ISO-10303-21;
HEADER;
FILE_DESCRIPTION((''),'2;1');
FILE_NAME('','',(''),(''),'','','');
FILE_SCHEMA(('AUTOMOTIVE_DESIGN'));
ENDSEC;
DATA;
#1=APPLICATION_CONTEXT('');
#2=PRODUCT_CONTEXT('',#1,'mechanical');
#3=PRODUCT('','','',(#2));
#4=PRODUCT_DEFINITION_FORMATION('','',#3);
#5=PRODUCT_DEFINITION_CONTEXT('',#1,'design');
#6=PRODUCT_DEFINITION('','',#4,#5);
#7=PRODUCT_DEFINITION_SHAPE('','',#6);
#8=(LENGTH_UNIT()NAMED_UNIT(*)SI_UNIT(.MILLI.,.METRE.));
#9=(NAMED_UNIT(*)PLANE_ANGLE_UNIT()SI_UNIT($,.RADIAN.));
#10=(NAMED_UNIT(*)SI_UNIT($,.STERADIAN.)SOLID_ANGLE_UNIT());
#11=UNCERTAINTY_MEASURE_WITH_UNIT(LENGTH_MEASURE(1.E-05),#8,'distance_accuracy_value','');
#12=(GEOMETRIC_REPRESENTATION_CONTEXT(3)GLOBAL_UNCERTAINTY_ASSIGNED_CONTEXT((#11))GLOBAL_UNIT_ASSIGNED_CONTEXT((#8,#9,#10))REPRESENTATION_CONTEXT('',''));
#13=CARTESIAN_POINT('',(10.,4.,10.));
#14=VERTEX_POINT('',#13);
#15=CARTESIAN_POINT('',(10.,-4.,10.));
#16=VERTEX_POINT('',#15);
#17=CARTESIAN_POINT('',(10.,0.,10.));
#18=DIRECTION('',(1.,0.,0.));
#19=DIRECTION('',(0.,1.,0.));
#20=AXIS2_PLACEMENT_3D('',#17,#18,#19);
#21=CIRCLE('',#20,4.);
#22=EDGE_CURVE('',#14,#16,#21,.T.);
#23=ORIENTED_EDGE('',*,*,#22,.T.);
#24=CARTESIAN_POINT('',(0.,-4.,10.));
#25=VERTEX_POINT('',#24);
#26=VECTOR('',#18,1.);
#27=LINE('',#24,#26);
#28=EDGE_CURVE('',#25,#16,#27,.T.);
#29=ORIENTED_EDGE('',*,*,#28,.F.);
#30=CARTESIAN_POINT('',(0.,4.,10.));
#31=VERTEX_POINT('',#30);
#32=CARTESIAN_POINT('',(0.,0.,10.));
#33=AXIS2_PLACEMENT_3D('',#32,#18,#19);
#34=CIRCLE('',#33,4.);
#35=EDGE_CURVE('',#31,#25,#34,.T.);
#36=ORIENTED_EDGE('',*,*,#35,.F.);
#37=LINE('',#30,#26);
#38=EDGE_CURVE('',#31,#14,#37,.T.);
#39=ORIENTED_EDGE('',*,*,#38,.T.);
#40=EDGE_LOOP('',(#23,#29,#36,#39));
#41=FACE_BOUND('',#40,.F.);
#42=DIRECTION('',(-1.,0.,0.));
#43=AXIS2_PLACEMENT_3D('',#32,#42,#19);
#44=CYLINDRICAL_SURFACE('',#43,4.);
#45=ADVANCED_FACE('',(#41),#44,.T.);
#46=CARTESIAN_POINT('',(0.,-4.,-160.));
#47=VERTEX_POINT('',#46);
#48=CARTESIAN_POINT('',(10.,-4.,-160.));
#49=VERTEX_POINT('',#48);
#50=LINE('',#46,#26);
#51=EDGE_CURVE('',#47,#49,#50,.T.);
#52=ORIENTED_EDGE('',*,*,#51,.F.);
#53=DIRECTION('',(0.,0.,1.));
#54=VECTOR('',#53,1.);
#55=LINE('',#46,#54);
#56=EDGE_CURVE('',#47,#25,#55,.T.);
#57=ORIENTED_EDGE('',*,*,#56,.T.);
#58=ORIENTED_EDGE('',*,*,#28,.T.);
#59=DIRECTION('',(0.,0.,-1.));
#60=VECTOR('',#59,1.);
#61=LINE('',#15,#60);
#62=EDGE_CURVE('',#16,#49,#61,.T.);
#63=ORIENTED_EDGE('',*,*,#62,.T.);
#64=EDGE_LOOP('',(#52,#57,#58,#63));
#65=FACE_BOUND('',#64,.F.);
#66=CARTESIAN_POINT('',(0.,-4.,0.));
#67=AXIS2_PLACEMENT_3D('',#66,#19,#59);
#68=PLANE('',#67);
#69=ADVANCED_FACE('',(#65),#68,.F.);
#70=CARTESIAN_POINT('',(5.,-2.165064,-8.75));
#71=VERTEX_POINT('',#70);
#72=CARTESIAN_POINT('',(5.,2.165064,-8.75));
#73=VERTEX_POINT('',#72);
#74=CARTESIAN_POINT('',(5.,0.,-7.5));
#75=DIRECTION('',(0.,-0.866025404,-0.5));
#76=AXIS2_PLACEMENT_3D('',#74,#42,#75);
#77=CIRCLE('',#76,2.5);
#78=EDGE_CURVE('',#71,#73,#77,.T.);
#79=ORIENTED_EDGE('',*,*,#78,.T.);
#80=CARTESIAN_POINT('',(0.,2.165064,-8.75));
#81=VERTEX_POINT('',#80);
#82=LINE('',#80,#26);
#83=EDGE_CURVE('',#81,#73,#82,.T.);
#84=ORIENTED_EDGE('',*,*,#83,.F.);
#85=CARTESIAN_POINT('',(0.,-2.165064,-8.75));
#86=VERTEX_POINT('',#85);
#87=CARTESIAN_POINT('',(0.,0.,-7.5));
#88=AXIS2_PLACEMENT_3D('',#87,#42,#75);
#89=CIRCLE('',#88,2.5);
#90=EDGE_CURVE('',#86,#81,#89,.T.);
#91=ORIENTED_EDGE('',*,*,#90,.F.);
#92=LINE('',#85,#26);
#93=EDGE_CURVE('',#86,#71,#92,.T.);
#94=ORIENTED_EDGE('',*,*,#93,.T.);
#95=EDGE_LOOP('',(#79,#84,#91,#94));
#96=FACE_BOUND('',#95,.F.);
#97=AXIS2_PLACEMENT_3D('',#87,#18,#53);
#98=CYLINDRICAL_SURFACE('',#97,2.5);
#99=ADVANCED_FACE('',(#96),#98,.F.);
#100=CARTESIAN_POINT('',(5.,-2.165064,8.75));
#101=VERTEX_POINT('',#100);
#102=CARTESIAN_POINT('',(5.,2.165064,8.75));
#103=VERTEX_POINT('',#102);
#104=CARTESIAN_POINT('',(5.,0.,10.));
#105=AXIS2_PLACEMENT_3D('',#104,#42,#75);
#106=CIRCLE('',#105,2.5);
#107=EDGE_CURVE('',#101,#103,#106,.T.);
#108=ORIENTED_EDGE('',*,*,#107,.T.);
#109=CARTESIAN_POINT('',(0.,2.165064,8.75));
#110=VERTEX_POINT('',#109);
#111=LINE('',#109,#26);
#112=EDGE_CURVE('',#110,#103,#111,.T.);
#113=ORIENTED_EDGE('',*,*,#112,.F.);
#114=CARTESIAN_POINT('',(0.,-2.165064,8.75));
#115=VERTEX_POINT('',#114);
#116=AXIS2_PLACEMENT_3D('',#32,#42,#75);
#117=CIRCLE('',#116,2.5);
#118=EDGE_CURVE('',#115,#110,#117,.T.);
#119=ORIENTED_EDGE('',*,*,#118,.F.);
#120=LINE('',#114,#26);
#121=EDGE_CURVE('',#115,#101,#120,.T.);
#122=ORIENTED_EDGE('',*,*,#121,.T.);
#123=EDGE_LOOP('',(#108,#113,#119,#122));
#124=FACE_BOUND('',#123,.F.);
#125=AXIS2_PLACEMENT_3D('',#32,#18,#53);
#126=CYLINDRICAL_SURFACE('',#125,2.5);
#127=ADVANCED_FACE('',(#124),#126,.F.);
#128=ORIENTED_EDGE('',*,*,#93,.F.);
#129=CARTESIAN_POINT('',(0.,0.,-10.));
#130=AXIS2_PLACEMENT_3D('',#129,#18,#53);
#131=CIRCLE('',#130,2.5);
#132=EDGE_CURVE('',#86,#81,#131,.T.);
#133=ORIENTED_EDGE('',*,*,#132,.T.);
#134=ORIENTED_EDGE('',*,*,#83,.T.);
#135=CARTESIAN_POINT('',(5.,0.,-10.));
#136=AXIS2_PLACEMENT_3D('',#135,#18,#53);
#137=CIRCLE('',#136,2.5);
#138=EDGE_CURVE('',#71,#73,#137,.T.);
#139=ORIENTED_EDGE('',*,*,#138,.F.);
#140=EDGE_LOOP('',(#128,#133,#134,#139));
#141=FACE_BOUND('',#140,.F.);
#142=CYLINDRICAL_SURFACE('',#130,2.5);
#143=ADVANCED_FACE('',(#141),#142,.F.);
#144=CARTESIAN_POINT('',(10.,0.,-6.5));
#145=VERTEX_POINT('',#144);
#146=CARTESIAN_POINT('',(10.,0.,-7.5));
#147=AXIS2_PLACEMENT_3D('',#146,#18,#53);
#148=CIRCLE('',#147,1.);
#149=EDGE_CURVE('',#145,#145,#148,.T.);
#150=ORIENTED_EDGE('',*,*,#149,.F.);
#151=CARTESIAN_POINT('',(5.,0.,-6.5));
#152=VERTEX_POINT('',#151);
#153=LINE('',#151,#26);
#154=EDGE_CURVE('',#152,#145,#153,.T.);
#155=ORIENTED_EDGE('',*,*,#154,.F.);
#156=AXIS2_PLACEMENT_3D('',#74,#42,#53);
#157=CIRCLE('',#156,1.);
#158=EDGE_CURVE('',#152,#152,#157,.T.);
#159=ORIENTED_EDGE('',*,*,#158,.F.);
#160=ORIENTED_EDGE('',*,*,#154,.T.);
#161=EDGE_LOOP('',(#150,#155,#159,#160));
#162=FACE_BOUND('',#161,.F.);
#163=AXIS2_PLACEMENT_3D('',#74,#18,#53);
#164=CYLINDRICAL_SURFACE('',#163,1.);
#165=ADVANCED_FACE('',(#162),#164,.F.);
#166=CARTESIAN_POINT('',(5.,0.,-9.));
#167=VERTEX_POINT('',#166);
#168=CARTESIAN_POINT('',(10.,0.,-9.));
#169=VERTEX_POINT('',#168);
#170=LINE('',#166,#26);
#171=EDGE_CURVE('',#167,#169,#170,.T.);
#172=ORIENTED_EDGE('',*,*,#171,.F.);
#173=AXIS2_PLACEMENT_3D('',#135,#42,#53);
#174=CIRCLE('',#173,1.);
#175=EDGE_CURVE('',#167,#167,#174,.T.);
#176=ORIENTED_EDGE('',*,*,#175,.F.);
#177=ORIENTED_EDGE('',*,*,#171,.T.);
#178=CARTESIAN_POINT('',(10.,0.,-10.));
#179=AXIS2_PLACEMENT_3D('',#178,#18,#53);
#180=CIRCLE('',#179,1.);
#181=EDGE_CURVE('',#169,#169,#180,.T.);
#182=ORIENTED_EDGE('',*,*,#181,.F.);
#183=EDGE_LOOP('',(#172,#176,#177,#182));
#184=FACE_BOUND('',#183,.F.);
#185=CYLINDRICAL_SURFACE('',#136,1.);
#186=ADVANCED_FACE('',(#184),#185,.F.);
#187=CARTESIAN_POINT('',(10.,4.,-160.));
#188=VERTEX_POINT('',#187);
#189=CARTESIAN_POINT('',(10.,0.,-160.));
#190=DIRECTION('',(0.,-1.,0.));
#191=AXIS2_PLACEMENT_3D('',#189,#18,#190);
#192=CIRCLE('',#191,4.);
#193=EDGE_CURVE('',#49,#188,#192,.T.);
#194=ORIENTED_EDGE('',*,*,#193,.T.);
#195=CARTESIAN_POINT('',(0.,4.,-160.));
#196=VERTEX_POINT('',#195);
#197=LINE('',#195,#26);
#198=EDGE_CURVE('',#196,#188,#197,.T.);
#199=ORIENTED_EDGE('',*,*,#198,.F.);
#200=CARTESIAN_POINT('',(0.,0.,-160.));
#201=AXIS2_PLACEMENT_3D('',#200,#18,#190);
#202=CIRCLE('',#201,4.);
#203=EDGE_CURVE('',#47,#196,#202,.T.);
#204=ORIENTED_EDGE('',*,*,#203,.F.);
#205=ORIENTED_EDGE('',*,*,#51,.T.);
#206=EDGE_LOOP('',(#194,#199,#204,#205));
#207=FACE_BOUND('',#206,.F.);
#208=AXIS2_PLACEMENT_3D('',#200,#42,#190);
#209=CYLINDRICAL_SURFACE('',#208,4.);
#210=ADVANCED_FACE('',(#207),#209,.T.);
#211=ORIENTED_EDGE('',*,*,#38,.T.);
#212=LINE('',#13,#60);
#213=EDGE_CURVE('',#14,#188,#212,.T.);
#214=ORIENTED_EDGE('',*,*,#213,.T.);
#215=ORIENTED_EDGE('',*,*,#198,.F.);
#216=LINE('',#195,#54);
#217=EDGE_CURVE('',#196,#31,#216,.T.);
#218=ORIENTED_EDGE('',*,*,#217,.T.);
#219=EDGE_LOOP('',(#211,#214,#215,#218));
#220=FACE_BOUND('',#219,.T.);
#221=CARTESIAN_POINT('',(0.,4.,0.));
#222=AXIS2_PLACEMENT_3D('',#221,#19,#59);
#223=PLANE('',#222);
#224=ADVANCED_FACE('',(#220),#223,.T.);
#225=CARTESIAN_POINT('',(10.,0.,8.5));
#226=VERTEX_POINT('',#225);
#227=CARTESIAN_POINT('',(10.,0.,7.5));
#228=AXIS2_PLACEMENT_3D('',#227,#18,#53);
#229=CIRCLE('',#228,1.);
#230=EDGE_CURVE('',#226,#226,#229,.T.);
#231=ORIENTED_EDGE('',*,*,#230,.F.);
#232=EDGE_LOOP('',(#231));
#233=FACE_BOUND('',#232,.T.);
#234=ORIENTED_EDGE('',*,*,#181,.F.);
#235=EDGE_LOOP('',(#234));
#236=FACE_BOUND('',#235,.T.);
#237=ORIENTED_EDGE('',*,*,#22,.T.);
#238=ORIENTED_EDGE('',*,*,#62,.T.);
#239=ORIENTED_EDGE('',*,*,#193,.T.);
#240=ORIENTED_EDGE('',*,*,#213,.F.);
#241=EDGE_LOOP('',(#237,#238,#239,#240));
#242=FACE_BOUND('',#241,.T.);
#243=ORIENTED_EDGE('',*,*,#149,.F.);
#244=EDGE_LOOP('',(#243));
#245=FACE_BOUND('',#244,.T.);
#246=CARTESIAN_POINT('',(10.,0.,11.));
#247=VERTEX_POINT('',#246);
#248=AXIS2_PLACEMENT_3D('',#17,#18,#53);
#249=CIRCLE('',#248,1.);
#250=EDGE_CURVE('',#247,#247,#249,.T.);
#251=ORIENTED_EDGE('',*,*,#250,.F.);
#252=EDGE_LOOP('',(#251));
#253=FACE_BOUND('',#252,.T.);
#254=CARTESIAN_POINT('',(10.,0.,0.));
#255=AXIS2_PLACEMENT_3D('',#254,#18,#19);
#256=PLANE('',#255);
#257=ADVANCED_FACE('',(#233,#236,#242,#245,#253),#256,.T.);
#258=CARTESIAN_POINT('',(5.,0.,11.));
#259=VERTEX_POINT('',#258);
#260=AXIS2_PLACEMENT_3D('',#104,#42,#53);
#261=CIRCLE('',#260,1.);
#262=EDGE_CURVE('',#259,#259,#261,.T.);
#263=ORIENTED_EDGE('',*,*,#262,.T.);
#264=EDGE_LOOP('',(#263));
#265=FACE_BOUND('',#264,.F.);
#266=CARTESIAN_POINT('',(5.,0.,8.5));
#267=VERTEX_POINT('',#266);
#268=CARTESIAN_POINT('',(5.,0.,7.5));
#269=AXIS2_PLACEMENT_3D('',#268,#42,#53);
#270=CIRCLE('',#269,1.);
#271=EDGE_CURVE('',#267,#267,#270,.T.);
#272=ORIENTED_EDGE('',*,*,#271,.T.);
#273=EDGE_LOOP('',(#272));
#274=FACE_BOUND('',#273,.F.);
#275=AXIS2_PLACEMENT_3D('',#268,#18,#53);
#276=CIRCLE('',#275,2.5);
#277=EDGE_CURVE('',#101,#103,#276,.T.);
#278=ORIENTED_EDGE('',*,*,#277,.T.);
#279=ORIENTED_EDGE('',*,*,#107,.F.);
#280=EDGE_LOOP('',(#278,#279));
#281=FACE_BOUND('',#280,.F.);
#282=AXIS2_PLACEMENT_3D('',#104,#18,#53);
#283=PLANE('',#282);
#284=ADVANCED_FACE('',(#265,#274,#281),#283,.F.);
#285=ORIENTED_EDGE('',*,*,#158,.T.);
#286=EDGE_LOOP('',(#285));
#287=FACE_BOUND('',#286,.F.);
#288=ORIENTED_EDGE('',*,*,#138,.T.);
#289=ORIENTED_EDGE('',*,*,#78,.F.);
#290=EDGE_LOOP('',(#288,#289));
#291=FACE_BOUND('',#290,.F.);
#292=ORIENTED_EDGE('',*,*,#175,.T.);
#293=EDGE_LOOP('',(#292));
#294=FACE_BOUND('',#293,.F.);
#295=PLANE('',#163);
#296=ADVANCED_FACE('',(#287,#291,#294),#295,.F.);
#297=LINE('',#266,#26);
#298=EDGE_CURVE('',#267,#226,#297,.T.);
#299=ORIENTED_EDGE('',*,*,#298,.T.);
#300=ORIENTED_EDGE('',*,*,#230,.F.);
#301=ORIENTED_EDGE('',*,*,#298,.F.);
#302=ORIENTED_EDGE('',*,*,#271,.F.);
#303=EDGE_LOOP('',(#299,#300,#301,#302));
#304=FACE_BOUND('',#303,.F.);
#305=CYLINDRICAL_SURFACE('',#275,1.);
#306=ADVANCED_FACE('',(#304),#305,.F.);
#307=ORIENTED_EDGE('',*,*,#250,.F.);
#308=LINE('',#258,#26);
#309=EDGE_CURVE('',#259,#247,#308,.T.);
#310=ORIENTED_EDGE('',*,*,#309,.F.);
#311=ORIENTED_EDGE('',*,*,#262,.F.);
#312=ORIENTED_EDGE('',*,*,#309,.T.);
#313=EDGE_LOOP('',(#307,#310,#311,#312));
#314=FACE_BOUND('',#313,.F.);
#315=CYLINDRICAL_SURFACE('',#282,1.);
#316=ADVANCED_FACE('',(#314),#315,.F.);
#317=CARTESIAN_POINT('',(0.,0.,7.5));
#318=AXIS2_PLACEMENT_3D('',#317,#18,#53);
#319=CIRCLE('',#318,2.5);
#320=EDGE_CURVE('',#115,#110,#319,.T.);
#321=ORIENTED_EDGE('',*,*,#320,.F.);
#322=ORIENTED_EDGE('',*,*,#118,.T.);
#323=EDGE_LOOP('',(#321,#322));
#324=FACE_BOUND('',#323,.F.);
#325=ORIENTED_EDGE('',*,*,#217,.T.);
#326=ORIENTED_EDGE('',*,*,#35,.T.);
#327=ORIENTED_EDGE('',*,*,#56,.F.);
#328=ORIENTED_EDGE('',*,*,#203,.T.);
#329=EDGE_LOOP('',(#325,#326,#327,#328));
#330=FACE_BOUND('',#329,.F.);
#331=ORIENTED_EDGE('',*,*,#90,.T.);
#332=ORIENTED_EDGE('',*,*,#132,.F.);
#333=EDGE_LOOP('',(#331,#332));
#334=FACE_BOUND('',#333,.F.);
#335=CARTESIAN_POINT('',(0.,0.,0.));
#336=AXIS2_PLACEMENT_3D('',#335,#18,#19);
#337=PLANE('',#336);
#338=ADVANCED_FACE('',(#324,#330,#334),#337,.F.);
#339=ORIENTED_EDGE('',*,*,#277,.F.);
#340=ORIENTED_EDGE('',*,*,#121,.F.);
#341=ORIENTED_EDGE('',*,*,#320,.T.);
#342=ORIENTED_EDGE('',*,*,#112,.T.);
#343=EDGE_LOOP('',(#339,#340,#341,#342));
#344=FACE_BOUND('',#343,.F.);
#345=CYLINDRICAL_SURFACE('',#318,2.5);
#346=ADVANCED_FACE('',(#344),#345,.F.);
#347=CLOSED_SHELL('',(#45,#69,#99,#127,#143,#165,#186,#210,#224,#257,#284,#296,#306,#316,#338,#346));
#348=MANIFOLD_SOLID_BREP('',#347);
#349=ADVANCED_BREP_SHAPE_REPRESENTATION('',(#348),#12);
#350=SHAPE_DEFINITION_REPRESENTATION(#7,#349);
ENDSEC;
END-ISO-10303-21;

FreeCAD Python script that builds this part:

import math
import FreeCAD as App
import Part
import Sketcher
Q = App.Units.Quantity

doc = App.newDocument("Part")
body = doc.addObject("PartDesign::Body", "Body")

# Sketch on YZ plane
sketch1 = body.newObject("Sketcher::SketchObject", "Sketch")
sketch1.AttachmentSupport = (doc.getObject("YZ_Plane"), [""])
sketch1.MapMode = "FlatFace"
sketch1.addGeometry([
    Part.LineSegment(App.Vector(4, -160, 0), App.Vector(4, 10, 0)),
    Part.ArcOfCircle(Part.Circle(App.Vector(0, 10, 0), App.Vector(0, 0, 1), 4), math.radians(0), math.radians(180)),
    Part.LineSegment(App.Vector(-4, 10, 0), App.Vector(-4, -160, 0)),
    Part.ArcOfCircle(Part.Circle(App.Vector(0, -160, 0), App.Vector(0, 0, 1), 4), math.radians(180), math.radians(360)),
], False)
sketch1.addConstraint([
    Sketcher.Constraint("Tangent", 0, 2, 1, 1),
    Sketcher.Constraint("Tangent", 1, 2, 2, 1),
    Sketcher.Constraint("Tangent", 2, 2, 3, 1),
    Sketcher.Constraint("Tangent", 3, 2, 0, 1),
    Sketcher.Constraint("Vertical", 0),
    Sketcher.Constraint("Vertical", 2),
    Sketcher.Constraint("PointOnObject", 1, 3, -2),
    Sketcher.Constraint("DistanceY", 3, 3, -1, 1, Q("160 mm")),
    Sketcher.Constraint("Radius", 1, Q("4 mm")),
    Sketcher.Constraint("DistanceY", 0, 1, 0, 2, Q("170 mm")),
])
pad1 = body.newObject("PartDesign::Pad", "Pad")
pad1.Profile = sketch1
pad1.Length = 10

# Sketch on YZ plane
sketch2 = body.newObject("Sketcher::SketchObject", "Sketch001")
sketch2.AttachmentSupport = (doc.getObject("YZ_Plane"), [""])
sketch2.MapMode = "FlatFace"
sketch2.addGeometry([
    Part.Circle(App.Vector(0, -7.5, 0), App.Vector(0, 0, 1), 1),
    Part.Circle(App.Vector(0, -10, 0), App.Vector(0, 0, 1), 1),
    Part.Circle(App.Vector(0, 7.5, 0), App.Vector(0, 0, 1), 1),
    Part.Circle(App.Vector(0, 10, 0), App.Vector(0, 0, 1), 1),
], False)
sketch2.addConstraint([
    Sketcher.Constraint("Equal", 0, 1),
    Sketcher.Constraint("Equal", 1, 2),
    Sketcher.Constraint("Equal", 2, 3),
    Sketcher.Constraint("Symmetric", 0, 3, 2, 3, -1, 1),
    Sketcher.Constraint("Symmetric", 1, 3, 3, 3, -1, 1),
    Sketcher.Constraint("PointOnObject", 0, 3, -2),
    Sketcher.Constraint("PointOnObject", 1, 3, -2),
    Sketcher.Constraint("Diameter", 0, Q("2 mm")),
    Sketcher.Constraint("DistanceY", 1, 3, -1, 1, Q("10 mm")),
    Sketcher.Constraint("DistanceY", 0, 3, 2, 3, Q("15 mm")),
])
doc.recompute()
hole = body.newObject("PartDesign::Hole", "Hole")
hole.Profile = sketch2
hole.ThreadType = "None"
hole.Diameter = 2
hole.DepthType = "ThroughAll"
hole.HoleCutType = "Counterbore"
hole.HoleCutDiameter = 5
hole.HoleCutDepth = 5
hole.Reversed = True

doc.recompute()
